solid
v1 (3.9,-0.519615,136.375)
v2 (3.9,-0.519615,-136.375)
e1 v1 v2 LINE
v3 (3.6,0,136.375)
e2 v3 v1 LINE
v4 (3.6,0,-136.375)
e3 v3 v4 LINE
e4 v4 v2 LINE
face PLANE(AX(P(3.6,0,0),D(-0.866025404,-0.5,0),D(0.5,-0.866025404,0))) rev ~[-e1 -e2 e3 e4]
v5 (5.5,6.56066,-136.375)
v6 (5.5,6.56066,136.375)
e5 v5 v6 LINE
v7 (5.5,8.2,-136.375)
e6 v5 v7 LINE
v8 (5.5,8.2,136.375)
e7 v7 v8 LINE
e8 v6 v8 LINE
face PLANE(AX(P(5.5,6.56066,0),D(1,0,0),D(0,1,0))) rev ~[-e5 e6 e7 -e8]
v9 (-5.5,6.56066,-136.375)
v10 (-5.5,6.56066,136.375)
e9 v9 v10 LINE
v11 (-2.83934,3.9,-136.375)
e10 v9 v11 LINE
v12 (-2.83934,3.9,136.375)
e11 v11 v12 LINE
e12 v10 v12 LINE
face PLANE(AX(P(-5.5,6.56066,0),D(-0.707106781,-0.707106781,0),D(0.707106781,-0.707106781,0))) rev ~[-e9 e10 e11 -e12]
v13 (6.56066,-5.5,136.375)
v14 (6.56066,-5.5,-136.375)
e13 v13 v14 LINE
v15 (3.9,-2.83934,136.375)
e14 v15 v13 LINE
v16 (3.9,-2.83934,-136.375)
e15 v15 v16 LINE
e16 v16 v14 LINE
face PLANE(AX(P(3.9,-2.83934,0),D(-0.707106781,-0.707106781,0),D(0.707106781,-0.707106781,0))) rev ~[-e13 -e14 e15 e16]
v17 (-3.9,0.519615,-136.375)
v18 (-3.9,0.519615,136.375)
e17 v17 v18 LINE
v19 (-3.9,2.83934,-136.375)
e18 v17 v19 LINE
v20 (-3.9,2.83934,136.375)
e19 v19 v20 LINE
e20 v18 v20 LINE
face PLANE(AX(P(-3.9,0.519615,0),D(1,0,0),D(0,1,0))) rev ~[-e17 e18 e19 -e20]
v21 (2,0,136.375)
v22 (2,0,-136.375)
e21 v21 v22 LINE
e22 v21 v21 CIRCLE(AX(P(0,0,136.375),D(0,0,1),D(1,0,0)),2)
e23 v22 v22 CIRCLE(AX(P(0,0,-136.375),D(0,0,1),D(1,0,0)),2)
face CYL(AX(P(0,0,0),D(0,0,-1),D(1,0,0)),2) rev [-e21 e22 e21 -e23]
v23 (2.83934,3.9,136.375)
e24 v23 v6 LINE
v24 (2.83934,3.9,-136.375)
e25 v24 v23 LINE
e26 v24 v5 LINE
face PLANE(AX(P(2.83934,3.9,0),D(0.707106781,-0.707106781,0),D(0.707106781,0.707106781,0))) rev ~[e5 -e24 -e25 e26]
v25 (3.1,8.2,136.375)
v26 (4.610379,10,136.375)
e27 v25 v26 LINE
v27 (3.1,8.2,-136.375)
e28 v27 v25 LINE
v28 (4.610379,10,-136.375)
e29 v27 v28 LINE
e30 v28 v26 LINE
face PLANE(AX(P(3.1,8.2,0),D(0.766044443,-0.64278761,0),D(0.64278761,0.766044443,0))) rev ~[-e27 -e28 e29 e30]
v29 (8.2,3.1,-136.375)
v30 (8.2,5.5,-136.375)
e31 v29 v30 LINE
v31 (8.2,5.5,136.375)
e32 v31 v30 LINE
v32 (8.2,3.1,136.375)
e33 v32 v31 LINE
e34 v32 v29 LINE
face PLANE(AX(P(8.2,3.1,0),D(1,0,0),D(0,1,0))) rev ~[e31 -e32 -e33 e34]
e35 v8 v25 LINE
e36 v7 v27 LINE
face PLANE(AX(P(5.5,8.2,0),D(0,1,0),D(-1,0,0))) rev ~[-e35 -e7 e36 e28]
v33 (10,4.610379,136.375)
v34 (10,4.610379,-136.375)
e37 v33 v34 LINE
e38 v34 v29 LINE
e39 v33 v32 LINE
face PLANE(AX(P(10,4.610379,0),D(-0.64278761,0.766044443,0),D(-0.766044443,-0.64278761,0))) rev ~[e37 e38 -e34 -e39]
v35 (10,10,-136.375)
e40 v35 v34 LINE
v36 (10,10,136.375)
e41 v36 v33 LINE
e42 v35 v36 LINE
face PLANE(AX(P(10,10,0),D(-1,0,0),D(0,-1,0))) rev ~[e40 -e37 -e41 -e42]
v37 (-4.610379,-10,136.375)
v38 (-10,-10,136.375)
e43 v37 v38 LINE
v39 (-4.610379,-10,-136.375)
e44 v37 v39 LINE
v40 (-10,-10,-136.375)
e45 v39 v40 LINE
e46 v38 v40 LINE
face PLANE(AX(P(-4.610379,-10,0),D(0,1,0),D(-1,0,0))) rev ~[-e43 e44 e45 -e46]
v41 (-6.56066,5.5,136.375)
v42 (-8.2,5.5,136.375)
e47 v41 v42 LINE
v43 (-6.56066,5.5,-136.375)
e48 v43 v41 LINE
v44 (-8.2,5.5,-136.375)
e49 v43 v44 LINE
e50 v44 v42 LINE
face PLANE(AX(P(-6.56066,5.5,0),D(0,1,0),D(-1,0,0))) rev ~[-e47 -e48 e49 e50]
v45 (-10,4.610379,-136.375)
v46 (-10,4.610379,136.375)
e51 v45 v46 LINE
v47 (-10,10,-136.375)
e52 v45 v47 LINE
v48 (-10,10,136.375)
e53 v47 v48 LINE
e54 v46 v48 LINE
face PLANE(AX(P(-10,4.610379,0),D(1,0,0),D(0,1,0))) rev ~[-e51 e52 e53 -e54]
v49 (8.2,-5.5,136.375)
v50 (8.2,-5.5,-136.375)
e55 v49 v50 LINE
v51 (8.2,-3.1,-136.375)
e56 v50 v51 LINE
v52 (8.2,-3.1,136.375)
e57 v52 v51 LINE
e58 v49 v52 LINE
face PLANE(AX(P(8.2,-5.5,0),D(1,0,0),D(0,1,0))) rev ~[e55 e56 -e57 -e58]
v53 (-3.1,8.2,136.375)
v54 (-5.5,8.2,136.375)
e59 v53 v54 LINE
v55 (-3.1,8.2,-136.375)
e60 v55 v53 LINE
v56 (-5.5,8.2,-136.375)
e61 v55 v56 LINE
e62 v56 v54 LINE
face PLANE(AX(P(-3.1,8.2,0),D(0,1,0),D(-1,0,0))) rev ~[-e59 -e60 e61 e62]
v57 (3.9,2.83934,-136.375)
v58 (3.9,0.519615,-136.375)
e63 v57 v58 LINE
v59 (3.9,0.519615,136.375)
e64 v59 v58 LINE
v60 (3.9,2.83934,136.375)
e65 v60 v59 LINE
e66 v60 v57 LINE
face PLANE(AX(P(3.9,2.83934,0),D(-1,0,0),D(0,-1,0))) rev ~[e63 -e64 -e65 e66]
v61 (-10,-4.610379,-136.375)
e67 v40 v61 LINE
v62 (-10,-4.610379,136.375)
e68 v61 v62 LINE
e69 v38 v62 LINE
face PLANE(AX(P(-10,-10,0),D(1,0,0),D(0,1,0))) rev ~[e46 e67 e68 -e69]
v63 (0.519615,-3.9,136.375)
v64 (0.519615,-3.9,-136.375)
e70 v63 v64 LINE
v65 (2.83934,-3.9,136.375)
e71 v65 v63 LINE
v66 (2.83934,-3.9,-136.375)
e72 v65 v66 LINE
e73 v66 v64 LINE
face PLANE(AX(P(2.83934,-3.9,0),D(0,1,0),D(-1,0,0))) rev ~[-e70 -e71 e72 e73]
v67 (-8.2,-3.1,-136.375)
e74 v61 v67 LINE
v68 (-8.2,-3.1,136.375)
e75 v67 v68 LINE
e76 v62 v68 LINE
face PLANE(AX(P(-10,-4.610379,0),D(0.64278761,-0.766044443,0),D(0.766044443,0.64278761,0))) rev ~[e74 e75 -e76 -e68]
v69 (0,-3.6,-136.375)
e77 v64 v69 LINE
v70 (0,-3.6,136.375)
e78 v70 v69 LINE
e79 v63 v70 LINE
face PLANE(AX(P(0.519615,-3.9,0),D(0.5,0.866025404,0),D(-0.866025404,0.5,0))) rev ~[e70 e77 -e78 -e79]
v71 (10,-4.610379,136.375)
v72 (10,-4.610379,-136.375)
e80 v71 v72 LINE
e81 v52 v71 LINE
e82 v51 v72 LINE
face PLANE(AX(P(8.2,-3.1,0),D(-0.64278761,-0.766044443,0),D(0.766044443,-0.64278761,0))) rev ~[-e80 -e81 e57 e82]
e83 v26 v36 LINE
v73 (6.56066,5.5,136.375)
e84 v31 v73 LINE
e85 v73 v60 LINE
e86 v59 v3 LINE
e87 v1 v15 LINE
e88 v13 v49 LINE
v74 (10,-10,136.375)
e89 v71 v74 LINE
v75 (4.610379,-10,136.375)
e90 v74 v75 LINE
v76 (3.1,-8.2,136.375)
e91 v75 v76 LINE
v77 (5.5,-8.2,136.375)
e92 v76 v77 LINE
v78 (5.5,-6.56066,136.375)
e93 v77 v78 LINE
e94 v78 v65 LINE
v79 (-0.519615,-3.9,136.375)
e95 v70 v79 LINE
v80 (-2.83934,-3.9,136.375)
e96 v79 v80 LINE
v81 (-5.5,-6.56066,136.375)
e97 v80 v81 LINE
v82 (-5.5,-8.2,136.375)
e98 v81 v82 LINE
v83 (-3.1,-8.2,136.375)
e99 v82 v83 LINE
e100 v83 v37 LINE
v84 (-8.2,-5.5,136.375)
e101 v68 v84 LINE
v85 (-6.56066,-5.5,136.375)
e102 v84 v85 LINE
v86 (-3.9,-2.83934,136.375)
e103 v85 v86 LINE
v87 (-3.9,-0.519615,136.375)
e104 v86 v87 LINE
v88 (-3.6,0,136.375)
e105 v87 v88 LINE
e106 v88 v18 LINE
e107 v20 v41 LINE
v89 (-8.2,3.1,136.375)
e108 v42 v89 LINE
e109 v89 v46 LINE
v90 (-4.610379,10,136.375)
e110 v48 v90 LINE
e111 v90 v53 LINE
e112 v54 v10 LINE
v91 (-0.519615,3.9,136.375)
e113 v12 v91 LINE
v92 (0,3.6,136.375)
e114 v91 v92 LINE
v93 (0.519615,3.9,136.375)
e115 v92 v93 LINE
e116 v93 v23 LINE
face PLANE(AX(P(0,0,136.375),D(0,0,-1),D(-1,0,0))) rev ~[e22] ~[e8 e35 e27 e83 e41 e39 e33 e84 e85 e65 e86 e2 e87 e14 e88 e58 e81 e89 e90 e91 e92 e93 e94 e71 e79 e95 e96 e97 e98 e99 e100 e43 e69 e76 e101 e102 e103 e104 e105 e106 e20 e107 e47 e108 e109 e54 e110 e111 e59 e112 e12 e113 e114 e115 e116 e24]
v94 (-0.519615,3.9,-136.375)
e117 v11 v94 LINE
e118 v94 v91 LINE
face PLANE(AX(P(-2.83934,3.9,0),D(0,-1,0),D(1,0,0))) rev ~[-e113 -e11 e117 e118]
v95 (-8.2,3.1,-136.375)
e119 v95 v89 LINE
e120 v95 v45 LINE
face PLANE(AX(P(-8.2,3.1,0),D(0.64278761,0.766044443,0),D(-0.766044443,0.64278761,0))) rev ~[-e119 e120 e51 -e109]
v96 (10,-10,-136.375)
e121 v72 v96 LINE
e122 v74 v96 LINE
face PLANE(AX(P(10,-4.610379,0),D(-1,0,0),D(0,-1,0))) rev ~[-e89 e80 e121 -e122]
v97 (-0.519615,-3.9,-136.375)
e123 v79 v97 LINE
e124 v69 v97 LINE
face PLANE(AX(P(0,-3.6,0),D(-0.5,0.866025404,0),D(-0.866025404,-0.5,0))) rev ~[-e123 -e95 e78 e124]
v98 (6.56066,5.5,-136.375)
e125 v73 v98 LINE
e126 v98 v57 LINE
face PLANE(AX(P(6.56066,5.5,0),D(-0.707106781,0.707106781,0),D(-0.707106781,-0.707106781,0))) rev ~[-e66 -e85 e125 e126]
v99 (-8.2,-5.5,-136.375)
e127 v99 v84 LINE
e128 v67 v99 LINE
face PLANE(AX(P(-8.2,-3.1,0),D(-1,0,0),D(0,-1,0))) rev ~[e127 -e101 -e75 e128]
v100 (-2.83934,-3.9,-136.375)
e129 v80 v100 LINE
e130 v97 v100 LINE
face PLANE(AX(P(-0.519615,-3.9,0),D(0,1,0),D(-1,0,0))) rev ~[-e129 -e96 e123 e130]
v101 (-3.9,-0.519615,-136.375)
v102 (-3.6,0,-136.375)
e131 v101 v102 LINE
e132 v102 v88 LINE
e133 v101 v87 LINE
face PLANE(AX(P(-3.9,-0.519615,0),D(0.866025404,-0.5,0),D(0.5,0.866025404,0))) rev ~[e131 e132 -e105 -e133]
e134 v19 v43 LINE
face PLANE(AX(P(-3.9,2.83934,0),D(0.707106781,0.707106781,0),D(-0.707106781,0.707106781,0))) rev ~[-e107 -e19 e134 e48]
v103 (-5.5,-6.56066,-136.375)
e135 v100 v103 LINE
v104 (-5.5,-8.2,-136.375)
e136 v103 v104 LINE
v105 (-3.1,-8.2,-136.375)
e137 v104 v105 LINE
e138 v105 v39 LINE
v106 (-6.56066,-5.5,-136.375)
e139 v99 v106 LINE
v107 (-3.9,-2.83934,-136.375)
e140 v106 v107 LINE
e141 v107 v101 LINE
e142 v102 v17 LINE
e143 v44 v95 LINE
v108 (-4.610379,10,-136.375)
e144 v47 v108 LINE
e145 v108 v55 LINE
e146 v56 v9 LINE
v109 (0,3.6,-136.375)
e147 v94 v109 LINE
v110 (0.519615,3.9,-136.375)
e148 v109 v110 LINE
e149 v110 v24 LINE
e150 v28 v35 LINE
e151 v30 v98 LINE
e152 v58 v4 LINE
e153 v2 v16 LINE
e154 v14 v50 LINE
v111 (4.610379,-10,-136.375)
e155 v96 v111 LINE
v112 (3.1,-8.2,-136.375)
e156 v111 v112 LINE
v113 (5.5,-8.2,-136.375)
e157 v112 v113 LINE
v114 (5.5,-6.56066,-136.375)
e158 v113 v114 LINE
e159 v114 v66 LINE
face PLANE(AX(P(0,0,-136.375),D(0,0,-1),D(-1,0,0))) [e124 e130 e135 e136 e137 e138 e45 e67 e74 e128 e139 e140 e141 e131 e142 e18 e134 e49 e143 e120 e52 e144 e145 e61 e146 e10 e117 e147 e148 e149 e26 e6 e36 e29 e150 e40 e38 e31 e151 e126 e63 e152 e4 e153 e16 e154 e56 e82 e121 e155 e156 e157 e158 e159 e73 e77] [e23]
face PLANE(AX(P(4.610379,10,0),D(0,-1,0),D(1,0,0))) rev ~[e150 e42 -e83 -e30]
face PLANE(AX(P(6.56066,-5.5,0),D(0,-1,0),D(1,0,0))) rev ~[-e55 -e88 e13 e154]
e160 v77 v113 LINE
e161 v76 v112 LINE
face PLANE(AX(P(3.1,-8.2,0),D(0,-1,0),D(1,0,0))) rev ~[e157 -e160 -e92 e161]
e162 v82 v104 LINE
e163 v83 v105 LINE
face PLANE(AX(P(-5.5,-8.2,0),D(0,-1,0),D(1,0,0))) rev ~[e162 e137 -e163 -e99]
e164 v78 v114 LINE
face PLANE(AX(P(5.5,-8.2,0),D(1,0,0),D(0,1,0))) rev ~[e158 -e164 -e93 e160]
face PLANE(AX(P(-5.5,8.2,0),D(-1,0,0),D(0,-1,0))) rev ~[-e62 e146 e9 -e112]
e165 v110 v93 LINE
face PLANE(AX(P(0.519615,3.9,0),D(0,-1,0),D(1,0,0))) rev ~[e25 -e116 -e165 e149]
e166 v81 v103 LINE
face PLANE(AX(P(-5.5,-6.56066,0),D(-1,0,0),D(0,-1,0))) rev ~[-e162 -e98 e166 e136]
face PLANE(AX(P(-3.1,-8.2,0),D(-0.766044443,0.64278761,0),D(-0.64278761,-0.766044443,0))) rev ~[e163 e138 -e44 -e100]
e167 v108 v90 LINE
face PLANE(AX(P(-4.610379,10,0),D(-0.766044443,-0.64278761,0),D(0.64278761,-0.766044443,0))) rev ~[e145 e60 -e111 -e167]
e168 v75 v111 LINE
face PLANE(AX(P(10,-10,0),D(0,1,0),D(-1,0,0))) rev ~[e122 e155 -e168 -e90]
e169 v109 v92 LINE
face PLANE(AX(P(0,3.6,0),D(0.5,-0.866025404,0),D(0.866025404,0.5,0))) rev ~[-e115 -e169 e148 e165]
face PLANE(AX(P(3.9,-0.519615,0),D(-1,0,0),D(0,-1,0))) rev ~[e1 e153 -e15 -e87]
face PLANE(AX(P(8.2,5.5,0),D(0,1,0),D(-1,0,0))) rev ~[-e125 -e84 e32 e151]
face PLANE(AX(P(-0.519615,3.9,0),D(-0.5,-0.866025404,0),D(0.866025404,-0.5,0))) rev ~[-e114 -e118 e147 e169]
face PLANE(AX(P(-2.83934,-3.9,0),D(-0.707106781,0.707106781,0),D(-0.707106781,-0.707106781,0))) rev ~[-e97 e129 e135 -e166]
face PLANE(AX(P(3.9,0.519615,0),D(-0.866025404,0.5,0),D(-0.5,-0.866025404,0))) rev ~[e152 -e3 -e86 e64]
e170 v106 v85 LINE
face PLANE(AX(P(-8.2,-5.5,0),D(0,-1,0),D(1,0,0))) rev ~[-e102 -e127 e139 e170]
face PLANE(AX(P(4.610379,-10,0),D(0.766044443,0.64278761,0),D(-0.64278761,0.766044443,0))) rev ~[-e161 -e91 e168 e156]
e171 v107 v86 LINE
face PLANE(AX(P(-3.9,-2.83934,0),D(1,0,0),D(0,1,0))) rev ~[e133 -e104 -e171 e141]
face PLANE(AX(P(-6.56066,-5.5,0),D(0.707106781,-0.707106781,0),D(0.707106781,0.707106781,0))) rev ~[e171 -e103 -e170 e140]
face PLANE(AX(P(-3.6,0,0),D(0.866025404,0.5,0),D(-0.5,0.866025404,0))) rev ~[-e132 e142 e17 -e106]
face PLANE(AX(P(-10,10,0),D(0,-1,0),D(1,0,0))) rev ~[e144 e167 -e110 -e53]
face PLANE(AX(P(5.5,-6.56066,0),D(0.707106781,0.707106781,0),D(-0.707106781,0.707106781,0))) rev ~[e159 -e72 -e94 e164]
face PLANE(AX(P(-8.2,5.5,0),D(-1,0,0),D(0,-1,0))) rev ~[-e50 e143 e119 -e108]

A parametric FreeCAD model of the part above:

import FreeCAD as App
import Part
import Sketcher
Q = App.Units.Quantity


def add_polygon(sketch, points):
    """Adds a closed chain of lines whose ends are joined by coincident constraints."""
    first, n = sketch.GeometryCount, len(points)
    for a, b in zip(points, points[1:] + points[:1]):
        sketch.addGeometry(Part.LineSegment(App.Vector(*a, 0), App.Vector(*b, 0)), False)
    for i in range(n):
        sketch.addConstraint(Sketcher.Constraint("Coincident", first + i, 2, first + (i + 1) % n, 1))

doc = App.newDocument("Part")
body = doc.addObject("PartDesign::Body", "Body")

sketch1 = doc.addObject("Sketcher::SketchObject", "Sketch")
body.addObject(sketch1)
sketch1.AttachmentSupport = (doc.XY_Plane, [""])
sketch1.MapMode = "FlatFace"
add_polygon(sketch1, [(10, 4.6), (10, 10), (4.6, 10), (3.1, 8.2), (5.5, 8.2), (5.5, 6.6), (2.8, 3.9), (0.5, 3.9), (0, 3.6), (-0.5, 3.9), (-2.8, 3.9), (-5.5, 6.6), (-5.5, 8.2), (-3.1, 8.2), (-4.6, 10), (-10, 10), (-10, 4.6), (-8.2, 3.1), (-8.2, 5.5), (-6.6, 5.5), (-3.9, 2.8), (-3.9, 0.5), (-3.6, 0), (-3.9, -0.5), (-3.9, -2.8), (-6.6, -5.5), (-8.2, -5.5), (-8.2, -3.1), (-10, -4.6), (-10, -10), (-4.6, -10), (-3.1, -8.2), (-5.5, -8.2), (-5.5, -6.6), (-2.8, -3.9), (-0.5, -3.9), (0, -3.6), (0.5, -3.9), (2.8, -3.9), (5.5, -6.6), (5.5, -8.2), (3.1, -8.2), (4.6, -10), (10, -10), (10, -4.6), (8.2, -3.1), (8.2, -5.5), (6.6, -5.5), (3.9, -2.8), (3.9, -0.5), (3.6, 0), (3.9, 0.5), (3.9, 2.8), (6.6, 5.5), (8.2, 5.5), (8.2, 3.1)])
sketch1.addGeometry(Part.Circle(App.Vector(0, 0, 0), App.Vector(0, 0, 1), 2), False)
sketch1.addConstraint(Sketcher.Constraint("Vertical", 0))
sketch1.addConstraint(Sketcher.Constraint("Horizontal", 1))
sketch1.addConstraint(Sketcher.Constraint("Horizontal", 3))
sketch1.addConstraint(Sketcher.Constraint("Vertical", 4))
sketch1.addConstraint(Sketcher.Constraint("Horizontal", 6))
sketch1.addConstraint(Sketcher.Constraint("Horizontal", 9))
sketch1.addConstraint(Sketcher.Constraint("Vertical", 11))
sketch1.addConstraint(Sketcher.Constraint("Horizontal", 12))
sketch1.addConstraint(Sketcher.Constraint("Horizontal", 14))
sketch1.addConstraint(Sketcher.Constraint("Vertical", 15))
sketch1.addConstraint(Sketcher.Constraint("Vertical", 17))
sketch1.addConstraint(Sketcher.Constraint("Horizontal", 18))
sketch1.addConstraint(Sketcher.Constraint("Vertical", 20))
sketch1.addConstraint(Sketcher.Constraint("Vertical", 23))
sketch1.addConstraint(Sketcher.Constraint("Horizontal", 25))
sketch1.addConstraint(Sketcher.Constraint("Vertical", 26))
sketch1.addConstraint(Sketcher.Constraint("Vertical", 28))
sketch1.addConstraint(Sketcher.Constraint("Horizontal", 29))
sketch1.addConstraint(Sketcher.Constraint("Horizontal", 31))
sketch1.addConstraint(Sketcher.Constraint("Vertical", 32))
sketch1.addConstraint(Sketcher.Constraint("Horizontal", 34))
sketch1.addConstraint(Sketcher.Constraint("Horizontal", 37))
sketch1.addConstraint(Sketcher.Constraint("Vertical", 39))
sketch1.addConstraint(Sketcher.Constraint("Horizontal", 40))
sketch1.addConstraint(Sketcher.Constraint("Horizontal", 42))
sketch1.addConstraint(Sketcher.Constraint("Vertical", 43))
sketch1.addConstraint(Sketcher.Constraint("Vertical", 45))
sketch1.addConstraint(Sketcher.Constraint("Horizontal", 46))
sketch1.addConstraint(Sketcher.Constraint("Vertical", 48))
sketch1.addConstraint(Sketcher.Constraint("Vertical", 51))
sketch1.addConstraint(Sketcher.Constraint("Horizontal", 53))
sketch1.addConstraint(Sketcher.Constraint("Vertical", 54))
sketch1.addConstraint(Sketcher.Constraint("Coincident", 56, 3, -1, 1))
sketch1.addConstraint(Sketcher.Constraint("Symmetric", 0, 2, 28, 2, -1, 1))
sketch1.addConstraint(Sketcher.Constraint("Symmetric", 2, 2, 30, 2, -1, 1))
sketch1.addConstraint(Sketcher.Constraint("Symmetric", 4, 2, 32, 2, -1, 1))
sketch1.addConstraint(Sketcher.Constraint("Symmetric", 5, 2, 33, 2, -1, 1))
sketch1.addConstraint(Sketcher.Constraint("Symmetric", 7, 2, 35, 2, -1, 1))
sketch1.addConstraint(Sketcher.Constraint("Symmetric", 8, 2, 36, 2, -1, 1))
sketch1.addConstraint(Sketcher.Constraint("Symmetric", 10, 2, 38, 2, -1, 1))
sketch1.addConstraint(Sketcher.Constraint("Symmetric", 12, 2, 40, 2, -1, 1))
sketch1.addConstraint(Sketcher.Constraint("Symmetric", 13, 2, 41, 2, -1, 1))
sketch1.addConstraint(Sketcher.Constraint("Symmetric", 15, 2, 43, 2, -1, 1))
sketch1.addConstraint(Sketcher.Constraint("Symmetric", 16, 2, 44, 2, -1, 1))
sketch1.addConstraint(Sketcher.Constraint("Symmetric", 18, 2, 46, 2, -1, 1))
sketch1.addConstraint(Sketcher.Constraint("Symmetric", 19, 2, 47, 2, -1, 1))
sketch1.addConstraint(Sketcher.Constraint("Symmetric", 21, 2, 49, 2, -1, 1))
sketch1.addConstraint(Sketcher.Constraint("Symmetric", 22, 2, 50, 2, -1, 1))
sketch1.addConstraint(Sketcher.Constraint("Symmetric", 24, 2, 52, 2, -1, 1))
sketch1.addConstraint(Sketcher.Constraint("Symmetric", 26, 2, 54, 2, -1, 1))
sketch1.addConstraint(Sketcher.Constraint("Symmetric", 6, 2, 8, 2, -2))
sketch1.addConstraint(Sketcher.Constraint("Symmetric", 4, 2, 10, 2, -2))
sketch1.addConstraint(Sketcher.Constraint("Symmetric", 2, 2, 12, 2, -2))
sketch1.addConstraint(Sketcher.Constraint("Symmetric", 1, 2, 13, 2, -2))
sketch1.addConstraint(Sketcher.Constraint("Symmetric", 27, 2, 43, 2, -2))
sketch1.addConstraint(Sketcher.Constraint("Symmetric", 26, 2, 44, 2, -2))
sketch1.addConstraint(Sketcher.Constraint("Symmetric", 24, 2, 46, 2, -2))
sketch1.addConstraint(Sketcher.Constraint("Symmetric", 23, 2, 47, 2, -2))
sketch1.addConstraint(Sketcher.Constraint("PointOnObject", 7, 2, -2))
sketch1.addConstraint(Sketcher.Constraint("PointOnObject", 21, 2, -1))
sketch1.addConstraint(Sketcher.Constraint("Perpendicular", 5, 10))
sketch1.addConstraint(Sketcher.Constraint("Perpendicular", 2, 16))
sketch1.addConstraint(Sketcher.Constraint("Parallel", 10, 19))
sketch1.addConstraint(Sketcher.Constraint("Perpendicular", 7, 21))
sketch1.addConstraint(Sketcher.Constraint("Perpendicular", 8, 22))
sketch1.addConstraint(Sketcher.Constraint("Perpendicular", 19, 24))
sketch1.addConstraint(Sketcher.Constraint("Perpendicular", 16, 30))
sketch1.addConstraint(Sketcher.Constraint("Perpendicular", 21, 35))
sketch1.addConstraint(Sketcher.Constraint("Perpendicular", 33, 38))
sketch1.addConstraint(Sketcher.Constraint("Perpendicular", 35, 49))
sketch1.addConstraint(Sketcher.Constraint("Perpendicular", 47, 52))
sketch1.addConstraint(Sketcher.Constraint("Perpendicular", 41, 55))
sketch1.addConstraint(Sketcher.Constraint("Equal", 42, 0))
sketch1.addConstraint(Sketcher.Constraint("Equal", 53, 4))
sketch1.addConstraint(Sketcher.Constraint("Equal", 40, 17))
sketch1.addConstraint(Sketcher.Constraint("Equal", 37, 20))
sketch1.addConstraint(Sketcher.Constraint("Equal", 13, 16))
sketch1.addConstraint(Sketcher.Constraint("Equal", 10, 19))
sketch1.addConstraint(Sketcher.Constraint("Equal", 8, 21))
sketch1.addConstraint(Sketcher.Constraint("Diameter", 56, Q("4 mm")))
sketch1.addConstraint(Sketcher.Constraint("Angle", 2, Q("-130 deg")))
sketch1.addConstraint(Sketcher.Constraint("Angle", 7, Q("-150 deg")))
sketch1.addConstraint(Sketcher.Constraint("DistanceX", 3, 1, 3, 2, Q("2.4 mm")))
sketch1.addConstraint(Sketcher.Constraint("DistanceX", -1, 1, 0, 2, Q("10 mm")))
sketch1.addConstraint(Sketcher.Constraint("Distance", 7, Q("0.6 mm")))
sketch1.addConstraint(Sketcher.Constraint("DistanceX", -1, 1, 2, 2, Q("3.1 mm")))
sketch1.addConstraint(Sketcher.Constraint("DistanceY", -1, 1, 2, 2, Q("8.2 mm")))
sketch1.addConstraint(Sketcher.Constraint("DistanceY", -1, 1, 5, 2, Q("3.9 mm")))
sketch1.addConstraint(Sketcher.Constraint("DistanceX", 18, 1, 18, 2, Q("1.63934 mm")))
pad1 = doc.addObject("PartDesign::Pad", "Pad")
body.addObject(pad1)
pad1.Profile = sketch1
pad1.Length = 272.75
pad1.Midplane = True

doc.recompute()
